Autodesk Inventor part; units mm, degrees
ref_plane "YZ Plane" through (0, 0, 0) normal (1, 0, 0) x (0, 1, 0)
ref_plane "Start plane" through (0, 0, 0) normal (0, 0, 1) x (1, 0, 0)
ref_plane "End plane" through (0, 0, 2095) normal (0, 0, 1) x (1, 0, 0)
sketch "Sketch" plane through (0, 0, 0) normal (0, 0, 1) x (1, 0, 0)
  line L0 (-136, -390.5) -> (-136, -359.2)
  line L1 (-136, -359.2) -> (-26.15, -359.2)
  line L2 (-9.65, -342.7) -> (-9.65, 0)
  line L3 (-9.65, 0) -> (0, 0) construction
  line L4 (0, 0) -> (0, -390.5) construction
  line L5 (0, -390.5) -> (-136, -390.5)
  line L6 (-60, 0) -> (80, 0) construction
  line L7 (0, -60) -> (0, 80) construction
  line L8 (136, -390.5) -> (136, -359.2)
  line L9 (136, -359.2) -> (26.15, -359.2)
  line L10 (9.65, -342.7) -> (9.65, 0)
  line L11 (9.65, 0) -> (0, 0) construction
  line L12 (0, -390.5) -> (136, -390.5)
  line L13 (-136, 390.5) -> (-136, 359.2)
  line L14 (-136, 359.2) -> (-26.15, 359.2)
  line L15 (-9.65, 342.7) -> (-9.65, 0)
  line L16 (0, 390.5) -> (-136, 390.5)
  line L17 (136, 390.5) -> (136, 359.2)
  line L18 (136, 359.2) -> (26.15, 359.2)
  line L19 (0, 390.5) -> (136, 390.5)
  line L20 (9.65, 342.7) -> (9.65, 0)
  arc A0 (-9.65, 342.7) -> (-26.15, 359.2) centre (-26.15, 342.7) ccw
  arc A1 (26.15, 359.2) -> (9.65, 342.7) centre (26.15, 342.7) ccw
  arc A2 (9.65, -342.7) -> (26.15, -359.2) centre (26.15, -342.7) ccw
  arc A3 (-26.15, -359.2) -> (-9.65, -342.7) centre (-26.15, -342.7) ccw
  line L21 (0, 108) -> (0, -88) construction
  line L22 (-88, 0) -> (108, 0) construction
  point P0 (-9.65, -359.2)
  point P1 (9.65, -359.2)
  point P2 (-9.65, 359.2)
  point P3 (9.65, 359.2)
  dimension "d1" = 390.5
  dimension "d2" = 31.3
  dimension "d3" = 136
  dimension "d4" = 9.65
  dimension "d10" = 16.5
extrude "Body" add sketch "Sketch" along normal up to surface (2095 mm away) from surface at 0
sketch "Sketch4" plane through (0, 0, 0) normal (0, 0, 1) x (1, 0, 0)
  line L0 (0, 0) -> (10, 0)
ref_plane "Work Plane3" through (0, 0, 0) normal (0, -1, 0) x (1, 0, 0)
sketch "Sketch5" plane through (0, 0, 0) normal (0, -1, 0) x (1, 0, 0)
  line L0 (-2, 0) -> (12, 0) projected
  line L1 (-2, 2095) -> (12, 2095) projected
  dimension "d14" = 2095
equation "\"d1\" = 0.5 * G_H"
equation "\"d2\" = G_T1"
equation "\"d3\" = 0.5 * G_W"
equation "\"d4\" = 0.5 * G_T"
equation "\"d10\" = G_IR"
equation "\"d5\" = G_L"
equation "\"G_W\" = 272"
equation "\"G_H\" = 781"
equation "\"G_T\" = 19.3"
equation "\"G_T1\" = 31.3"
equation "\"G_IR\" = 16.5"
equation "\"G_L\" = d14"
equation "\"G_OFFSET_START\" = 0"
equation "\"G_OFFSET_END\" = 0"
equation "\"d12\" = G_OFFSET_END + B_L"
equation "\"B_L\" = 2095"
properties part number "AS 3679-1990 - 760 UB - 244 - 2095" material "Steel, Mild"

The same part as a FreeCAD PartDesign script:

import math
import FreeCAD as App
import Part
import Sketcher
from FreeCAD import Vector
Q = App.Units.Quantity

doc = App.newDocument("Part")
params = doc.addObject("Spreadsheet::Sheet", "Params")
for row, (alias, value) in enumerate([
    ("sketch1_radius", "16.5 mm"),
    ("sketch1_height", "31.3 mm"),
    ("pad1_length", "2095 mm"),
], start=1):
    params.set(f"A{row}", alias)
    params.set(f"B{row}", "=" + value)
    params.setAlias(f"B{row}", alias)

body = doc.addObject("PartDesign::Body", "Body")

# Sketch on XY plane
sketch1 = doc.addObject("Sketcher::SketchObject", "Sketch")
body.addObject(sketch1)
sketch1.AttachmentSupport = (doc.XY_Plane, [""])
sketch1.MapMode = "FlatFace"
sketch1.addGeometry(Part.LineSegment(Vector(-136, -359, 0), Vector(-136, -390, 0)), False)
sketch1.addGeometry(Part.LineSegment(Vector(-136, -390, 0), Vector(136, -390, 0)), False)
sketch1.addGeometry(Part.LineSegment(Vector(136, -390, 0), Vector(136, -359, 0)), False)
sketch1.addGeometry(Part.LineSegment(Vector(136, -359, 0), Vector(26, -359, 0)), False)
sketch1.addGeometry(Part.ArcOfCircle(Part.Circle(Vector(26, -343, 0), Vector(0, 0, 1), 16), math.radians(180), math.radians(270)), False)
sketch1.addGeometry(Part.LineSegment(Vector(10, -343, 0), Vector(10, 343, 0)), False)
sketch1.addGeometry(Part.ArcOfCircle(Part.Circle(Vector(26, 343, 0), Vector(0, 0, 1), 16), math.radians(90), math.radians(180)), False)
sketch1.addGeometry(Part.LineSegment(Vector(26, 359, 0), Vector(136, 359, 0)), False)
sketch1.addGeometry(Part.LineSegment(Vector(136, 359, 0), Vector(136, 390, 0)), False)
sketch1.addGeometry(Part.LineSegment(Vector(136, 390, 0), Vector(-136, 390, 0)), False)
sketch1.addGeometry(Part.LineSegment(Vector(-136, 390, 0), Vector(-136, 359, 0)), False)
sketch1.addGeometry(Part.LineSegment(Vector(-136, 359, 0), Vector(-26, 359, 0)), False)
sketch1.addGeometry(Part.ArcOfCircle(Part.Circle(Vector(-26, 343, 0), Vector(0, 0, 1), 16), math.radians(0), math.radians(90)), False)
sketch1.addGeometry(Part.LineSegment(Vector(-10, 343, 0), Vector(-10, -343, 0)), False)
sketch1.addGeometry(Part.ArcOfCircle(Part.Circle(Vector(-26, -343, 0), Vector(0, 0, 1), 16), math.radians(-90), math.radians(0)), False)
sketch1.addGeometry(Part.LineSegment(Vector(-26, -359, 0), Vector(-136, -359, 0)), False)
sketch1.addConstraint(Sketcher.Constraint("Coincident", 0, 2, 1, 1))
sketch1.addConstraint(Sketcher.Constraint("Coincident", 1, 2, 2, 1))
sketch1.addConstraint(Sketcher.Constraint("Coincident", 2, 2, 3, 1))
sketch1.addConstraint(Sketcher.Constraint("Tangent", 3, 2, 4, 2))
sketch1.addConstraint(Sketcher.Constraint("Tangent", 4, 1, 5, 1))
sketch1.addConstraint(Sketcher.Constraint("Tangent", 5, 2, 6, 2))
sketch1.addConstraint(Sketcher.Constraint("Tangent", 6, 1, 7, 1))
sketch1.addConstraint(Sketcher.Constraint("Coincident", 7, 2, 8, 1))
sketch1.addConstraint(Sketcher.Constraint("Coincident", 8, 2, 9, 1))
sketch1.addConstraint(Sketcher.Constraint("Coincident", 9, 2, 10, 1))
sketch1.addConstraint(Sketcher.Constraint("Coincident", 10, 2, 11, 1))
sketch1.addConstraint(Sketcher.Constraint("Tangent", 11, 2, 12, 2))
sketch1.addConstraint(Sketcher.Constraint("Tangent", 12, 1, 13, 1))
sketch1.addConstraint(Sketcher.Constraint("Tangent", 13, 2, 14, 2))
sketch1.addConstraint(Sketcher.Constraint("Tangent", 14, 1, 15, 1))
sketch1.addConstraint(Sketcher.Constraint("Coincident", 15, 2, 0, 1))
sketch1.addConstraint(Sketcher.Constraint("Vertical", 0))
sketch1.addConstraint(Sketcher.Constraint("Horizontal", 1))
sketch1.addConstraint(Sketcher.Constraint("Vertical", 2))
sketch1.addConstraint(Sketcher.Constraint("Horizontal", 3))
sketch1.addConstraint(Sketcher.Constraint("Vertical", 5))
sketch1.addConstraint(Sketcher.Constraint("Horizontal", 7))
sketch1.addConstraint(Sketcher.Constraint("Vertical", 8))
sketch1.addConstraint(Sketcher.Constraint("Horizontal", 9))
sketch1.addConstraint(Sketcher.Constraint("Vertical", 10))
sketch1.addConstraint(Sketcher.Constraint("Horizontal", 11))
sketch1.addConstraint(Sketcher.Constraint("Vertical", 13))
sketch1.addConstraint(Sketcher.Constraint("Horizontal", 15))
sketch1.addConstraint(Sketcher.Constraint("Equal", 4, 6))
sketch1.addConstraint(Sketcher.Constraint("Equal", 6, 12))
sketch1.addConstraint(Sketcher.Constraint("Equal", 12, 14))
sketch1.addConstraint(Sketcher.Constraint("Symmetric", 4, 3, 12, 3, -1, 1))
sketch1.addConstraint(Sketcher.Constraint("Symmetric", 0, 2, 8, 2, -1, 1))
sketch1.addConstraint(Sketcher.Constraint("Symmetric", 7, 2, 10, 2, -2))
sketch1.addConstraint(Sketcher.Constraint("Symmetric", 2, 2, 15, 2, -2))
sketch1.addConstraint(Sketcher.Constraint("Radius", 4, Q("16.5 mm")))
sketch1.addConstraint(Sketcher.Constraint("DistanceY", 0, 2, 0, 1, Q("31.3 mm")))
sketch1.addConstraint(Sketcher.Constraint("DistanceX", 0, 2, -1, 1, Q("136 mm")))
sketch1.addConstraint(Sketcher.Constraint("DistanceY", 0, 2, -1, 1, Q("390.5 mm")))
sketch1.addConstraint(Sketcher.Constraint("DistanceX", -1, 1, 4, 1, Q("9.65 mm")))
sketch1.setExpression("Constraints[35]", "Params.sketch1_radius")
sketch1.setExpression("Constraints[36]", "Params.sketch1_height")
pad1 = doc.addObject("PartDesign::Pad", "Pad")
body.addObject(pad1)
pad1.Profile = sketch1
pad1.setExpression("Length", "Params.pad1_length")

doc.recompute()
